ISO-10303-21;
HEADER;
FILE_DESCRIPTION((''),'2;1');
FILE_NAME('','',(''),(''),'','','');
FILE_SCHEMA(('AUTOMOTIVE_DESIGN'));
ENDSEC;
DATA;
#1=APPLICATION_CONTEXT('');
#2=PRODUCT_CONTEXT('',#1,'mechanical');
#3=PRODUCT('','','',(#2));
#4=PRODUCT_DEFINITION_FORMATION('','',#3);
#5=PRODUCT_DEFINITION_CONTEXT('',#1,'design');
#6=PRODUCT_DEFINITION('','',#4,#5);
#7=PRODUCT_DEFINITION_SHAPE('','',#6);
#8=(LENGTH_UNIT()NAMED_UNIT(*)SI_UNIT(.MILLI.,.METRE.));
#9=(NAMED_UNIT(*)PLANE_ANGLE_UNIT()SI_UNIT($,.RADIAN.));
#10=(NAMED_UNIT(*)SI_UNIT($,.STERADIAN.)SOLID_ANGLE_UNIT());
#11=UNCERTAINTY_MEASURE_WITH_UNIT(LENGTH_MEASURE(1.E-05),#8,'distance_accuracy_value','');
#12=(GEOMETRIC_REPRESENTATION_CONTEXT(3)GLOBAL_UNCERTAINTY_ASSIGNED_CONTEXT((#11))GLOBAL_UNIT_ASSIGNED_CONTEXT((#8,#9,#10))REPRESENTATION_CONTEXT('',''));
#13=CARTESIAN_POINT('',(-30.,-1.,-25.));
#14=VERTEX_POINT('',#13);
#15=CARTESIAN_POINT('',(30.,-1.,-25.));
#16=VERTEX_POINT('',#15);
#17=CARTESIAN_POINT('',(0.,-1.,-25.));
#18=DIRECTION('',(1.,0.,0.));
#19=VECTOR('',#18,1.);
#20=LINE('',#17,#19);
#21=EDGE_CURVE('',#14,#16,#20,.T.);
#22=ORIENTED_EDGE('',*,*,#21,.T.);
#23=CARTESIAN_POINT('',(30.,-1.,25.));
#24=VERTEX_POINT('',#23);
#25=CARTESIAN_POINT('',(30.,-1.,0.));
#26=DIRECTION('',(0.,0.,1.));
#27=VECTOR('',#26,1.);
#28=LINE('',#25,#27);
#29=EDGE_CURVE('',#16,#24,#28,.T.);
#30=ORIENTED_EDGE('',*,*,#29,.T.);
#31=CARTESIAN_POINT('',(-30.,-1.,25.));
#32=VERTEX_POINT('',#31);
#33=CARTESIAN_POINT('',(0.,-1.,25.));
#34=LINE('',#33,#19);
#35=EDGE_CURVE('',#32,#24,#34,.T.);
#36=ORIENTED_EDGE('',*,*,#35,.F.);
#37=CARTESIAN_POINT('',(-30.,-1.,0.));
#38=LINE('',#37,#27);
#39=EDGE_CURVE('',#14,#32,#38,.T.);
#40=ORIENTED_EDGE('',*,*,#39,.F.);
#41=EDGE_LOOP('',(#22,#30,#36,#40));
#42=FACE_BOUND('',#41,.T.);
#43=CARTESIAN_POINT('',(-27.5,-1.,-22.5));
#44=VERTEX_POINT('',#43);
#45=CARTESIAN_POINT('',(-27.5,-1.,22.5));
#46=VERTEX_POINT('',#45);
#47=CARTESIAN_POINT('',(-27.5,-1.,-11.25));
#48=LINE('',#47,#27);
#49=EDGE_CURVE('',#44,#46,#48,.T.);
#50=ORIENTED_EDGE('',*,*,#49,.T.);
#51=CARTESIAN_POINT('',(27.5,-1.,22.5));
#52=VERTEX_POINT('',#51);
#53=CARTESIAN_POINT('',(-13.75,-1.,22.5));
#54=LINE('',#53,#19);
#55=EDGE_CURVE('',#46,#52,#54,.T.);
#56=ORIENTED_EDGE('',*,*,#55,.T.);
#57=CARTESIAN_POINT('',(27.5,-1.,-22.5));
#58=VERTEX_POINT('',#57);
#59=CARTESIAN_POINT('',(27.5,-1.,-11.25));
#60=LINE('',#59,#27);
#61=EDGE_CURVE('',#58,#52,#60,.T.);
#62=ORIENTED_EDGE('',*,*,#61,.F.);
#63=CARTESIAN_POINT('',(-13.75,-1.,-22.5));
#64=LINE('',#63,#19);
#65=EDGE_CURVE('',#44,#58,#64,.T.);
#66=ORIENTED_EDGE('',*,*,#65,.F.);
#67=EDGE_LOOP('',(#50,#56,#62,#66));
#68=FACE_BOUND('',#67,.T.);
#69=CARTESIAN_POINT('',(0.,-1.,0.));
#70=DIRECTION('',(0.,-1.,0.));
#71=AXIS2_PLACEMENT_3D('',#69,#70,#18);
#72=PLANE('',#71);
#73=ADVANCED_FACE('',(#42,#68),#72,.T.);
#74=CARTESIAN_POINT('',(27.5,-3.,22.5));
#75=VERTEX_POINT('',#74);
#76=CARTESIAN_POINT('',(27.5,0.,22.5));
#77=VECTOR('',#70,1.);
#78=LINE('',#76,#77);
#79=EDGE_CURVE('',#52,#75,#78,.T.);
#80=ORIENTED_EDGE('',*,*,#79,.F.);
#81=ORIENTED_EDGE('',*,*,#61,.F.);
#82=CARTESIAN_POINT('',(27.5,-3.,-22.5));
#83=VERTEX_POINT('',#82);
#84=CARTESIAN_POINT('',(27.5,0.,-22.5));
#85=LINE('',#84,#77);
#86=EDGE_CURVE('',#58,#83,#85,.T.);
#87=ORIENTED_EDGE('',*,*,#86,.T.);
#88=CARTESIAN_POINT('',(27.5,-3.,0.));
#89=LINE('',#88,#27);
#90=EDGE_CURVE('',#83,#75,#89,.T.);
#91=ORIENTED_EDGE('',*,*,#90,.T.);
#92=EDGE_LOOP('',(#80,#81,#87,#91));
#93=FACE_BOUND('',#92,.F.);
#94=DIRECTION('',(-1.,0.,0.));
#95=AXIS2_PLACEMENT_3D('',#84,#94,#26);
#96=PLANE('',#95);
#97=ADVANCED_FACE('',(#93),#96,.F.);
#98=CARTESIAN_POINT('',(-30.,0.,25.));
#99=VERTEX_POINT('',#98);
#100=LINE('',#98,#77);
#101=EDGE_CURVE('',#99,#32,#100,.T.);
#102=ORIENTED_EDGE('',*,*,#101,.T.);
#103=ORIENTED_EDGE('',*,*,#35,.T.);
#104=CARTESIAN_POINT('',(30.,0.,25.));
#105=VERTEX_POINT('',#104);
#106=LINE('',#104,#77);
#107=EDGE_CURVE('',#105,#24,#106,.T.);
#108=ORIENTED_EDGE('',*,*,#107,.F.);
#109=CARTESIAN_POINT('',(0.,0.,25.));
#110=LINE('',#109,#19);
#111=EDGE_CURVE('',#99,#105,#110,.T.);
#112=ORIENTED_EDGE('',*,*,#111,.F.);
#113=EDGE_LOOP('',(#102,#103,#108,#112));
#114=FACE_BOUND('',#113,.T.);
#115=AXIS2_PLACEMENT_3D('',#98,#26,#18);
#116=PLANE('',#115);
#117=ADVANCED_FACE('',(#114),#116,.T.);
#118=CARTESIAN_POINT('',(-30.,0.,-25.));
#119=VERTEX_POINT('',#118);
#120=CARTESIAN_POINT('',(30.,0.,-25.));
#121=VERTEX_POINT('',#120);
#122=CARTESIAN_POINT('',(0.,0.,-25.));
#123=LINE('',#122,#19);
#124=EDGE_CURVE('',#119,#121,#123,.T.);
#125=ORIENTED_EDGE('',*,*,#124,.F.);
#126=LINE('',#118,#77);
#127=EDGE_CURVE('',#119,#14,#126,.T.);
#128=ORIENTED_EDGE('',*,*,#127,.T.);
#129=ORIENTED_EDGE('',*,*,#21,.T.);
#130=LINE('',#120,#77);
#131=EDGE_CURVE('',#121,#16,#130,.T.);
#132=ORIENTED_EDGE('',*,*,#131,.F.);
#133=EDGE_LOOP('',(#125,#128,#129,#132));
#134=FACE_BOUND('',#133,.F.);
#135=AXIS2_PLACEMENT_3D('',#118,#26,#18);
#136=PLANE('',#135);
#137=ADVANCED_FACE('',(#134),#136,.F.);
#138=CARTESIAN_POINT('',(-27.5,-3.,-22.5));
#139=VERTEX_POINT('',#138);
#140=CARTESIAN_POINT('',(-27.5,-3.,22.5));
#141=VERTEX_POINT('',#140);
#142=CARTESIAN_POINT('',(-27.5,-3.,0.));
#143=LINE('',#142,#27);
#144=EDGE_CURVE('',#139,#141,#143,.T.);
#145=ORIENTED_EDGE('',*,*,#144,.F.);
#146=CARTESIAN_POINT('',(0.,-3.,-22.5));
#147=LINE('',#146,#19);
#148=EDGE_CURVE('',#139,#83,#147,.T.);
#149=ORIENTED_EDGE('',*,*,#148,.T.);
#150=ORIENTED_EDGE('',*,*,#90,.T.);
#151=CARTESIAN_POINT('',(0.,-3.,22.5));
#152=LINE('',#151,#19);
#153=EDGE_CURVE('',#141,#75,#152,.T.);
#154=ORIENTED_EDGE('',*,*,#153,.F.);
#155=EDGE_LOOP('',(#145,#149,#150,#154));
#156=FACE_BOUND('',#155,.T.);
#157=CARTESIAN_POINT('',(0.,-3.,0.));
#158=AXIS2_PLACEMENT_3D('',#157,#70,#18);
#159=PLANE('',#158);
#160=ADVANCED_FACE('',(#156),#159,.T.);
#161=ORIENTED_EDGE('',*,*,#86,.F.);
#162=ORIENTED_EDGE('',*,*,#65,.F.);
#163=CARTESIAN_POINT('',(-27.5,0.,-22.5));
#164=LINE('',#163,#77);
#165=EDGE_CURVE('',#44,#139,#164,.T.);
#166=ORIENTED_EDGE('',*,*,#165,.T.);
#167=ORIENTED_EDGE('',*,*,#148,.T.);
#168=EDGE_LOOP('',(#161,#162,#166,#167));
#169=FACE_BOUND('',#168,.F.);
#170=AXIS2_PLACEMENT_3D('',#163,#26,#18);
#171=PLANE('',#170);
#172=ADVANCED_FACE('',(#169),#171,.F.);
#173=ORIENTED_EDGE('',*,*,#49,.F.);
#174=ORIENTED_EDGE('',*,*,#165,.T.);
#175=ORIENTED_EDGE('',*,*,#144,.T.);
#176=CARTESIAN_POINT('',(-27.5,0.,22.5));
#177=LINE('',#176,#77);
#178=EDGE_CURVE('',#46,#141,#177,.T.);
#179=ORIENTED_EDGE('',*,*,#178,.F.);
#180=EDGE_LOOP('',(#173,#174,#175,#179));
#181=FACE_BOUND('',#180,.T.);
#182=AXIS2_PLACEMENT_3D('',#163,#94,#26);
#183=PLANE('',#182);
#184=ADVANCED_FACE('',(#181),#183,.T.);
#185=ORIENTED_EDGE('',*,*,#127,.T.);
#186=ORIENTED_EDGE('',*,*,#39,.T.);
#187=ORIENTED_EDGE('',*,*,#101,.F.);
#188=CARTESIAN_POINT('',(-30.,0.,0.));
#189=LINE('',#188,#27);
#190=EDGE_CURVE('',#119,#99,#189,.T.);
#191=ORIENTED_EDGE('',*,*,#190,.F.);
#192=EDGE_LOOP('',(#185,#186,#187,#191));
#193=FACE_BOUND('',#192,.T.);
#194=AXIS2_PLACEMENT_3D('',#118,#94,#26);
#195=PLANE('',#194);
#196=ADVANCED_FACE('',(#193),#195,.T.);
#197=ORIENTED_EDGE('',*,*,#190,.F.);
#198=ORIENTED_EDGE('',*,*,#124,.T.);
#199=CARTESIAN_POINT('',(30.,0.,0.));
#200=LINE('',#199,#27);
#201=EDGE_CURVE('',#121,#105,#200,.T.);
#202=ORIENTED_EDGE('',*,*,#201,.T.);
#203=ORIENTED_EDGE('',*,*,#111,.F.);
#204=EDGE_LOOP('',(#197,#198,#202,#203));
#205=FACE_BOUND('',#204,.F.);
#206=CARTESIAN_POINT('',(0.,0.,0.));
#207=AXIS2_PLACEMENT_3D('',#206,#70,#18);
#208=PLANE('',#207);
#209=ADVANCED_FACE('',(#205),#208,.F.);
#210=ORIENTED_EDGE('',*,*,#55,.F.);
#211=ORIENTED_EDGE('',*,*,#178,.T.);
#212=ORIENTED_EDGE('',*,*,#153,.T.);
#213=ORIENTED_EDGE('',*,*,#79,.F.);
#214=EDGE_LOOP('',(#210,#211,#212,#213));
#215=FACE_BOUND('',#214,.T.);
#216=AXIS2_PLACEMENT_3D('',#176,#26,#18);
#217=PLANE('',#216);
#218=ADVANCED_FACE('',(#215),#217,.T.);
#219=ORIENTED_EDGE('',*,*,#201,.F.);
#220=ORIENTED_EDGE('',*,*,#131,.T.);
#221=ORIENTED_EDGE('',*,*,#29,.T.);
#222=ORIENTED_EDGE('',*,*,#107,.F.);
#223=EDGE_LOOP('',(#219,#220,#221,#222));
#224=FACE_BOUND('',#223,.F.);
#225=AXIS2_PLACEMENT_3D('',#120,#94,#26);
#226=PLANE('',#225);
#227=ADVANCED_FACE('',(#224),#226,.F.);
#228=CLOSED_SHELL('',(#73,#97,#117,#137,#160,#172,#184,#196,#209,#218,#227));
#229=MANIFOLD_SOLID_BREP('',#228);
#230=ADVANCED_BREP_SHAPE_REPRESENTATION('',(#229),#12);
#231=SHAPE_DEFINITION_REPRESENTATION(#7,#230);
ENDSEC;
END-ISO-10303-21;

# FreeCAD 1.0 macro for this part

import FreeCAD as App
import Part
import Sketcher

doc = App.newDocument("Part")
params = doc.addObject("Spreadsheet::Sheet", "Params")
for row, (alias, value) in enumerate([
    ("sketch1_width", "55 mm"),
    ("sketch1_height", "45 mm"),
    ("pad1_length", "3 mm"),
    ("sketch2_width", "60 mm"),
    ("sketch2_height", "50 mm"),
    ("pad2_length", "1 mm"),
], start=1):
    params.set(f"A{row}", alias)
    params.set(f"B{row}", "=" + value)
    params.setAlias(f"B{row}", alias)

body = doc.addObject("PartDesign::Body", "Body")

# Sketch on XZ plane
sketch1 = body.newObject("Sketcher::SketchObject", "Sketch")
sketch1.AttachmentSupport = (doc.getObject("XZ_Plane"), [""])
sketch1.MapMode = "FlatFace"
sketch1.addGeometry([
    Part.LineSegment(App.Vector(-28, 22, 0), App.Vector(-28, -22, 0)),
    Part.LineSegment(App.Vector(-28, -22, 0), App.Vector(28, -22, 0)),
    Part.LineSegment(App.Vector(28, -22, 0), App.Vector(28, 22, 0)),
    Part.LineSegment(App.Vector(28, 22, 0), App.Vector(-28, 22, 0)),
], False)
sketch1.addConstraint([
    Sketcher.Constraint("Coincident", 0, 2, 1, 1),
    Sketcher.Constraint("Coincident", 1, 2, 2, 1),
    Sketcher.Constraint("Coincident", 2, 2, 3, 1),
    Sketcher.Constraint("Coincident", 3, 2, 0, 1),
    Sketcher.Constraint("Vertical", 0),
    Sketcher.Constraint("Horizontal", 1),
    Sketcher.Constraint("Vertical", 2),
    Sketcher.Constraint("Horizontal", 3),
    Sketcher.Constraint("Symmetric", 0, 2, 2, 2, -1, 1),
    Sketcher.Constraint("DistanceX", 1, 1, 1, 2, 55.0),
    Sketcher.Constraint("DistanceY", 0, 2, 0, 1, 45.0),
])
sketch1.setExpression("Constraints[9]", "Params.sketch1_width")
sketch1.setExpression("Constraints[10]", "Params.sketch1_height")
pad1 = body.newObject("PartDesign::Pad", "Pad")
pad1.Profile = sketch1
pad1.setExpression("Length", "Params.pad1_length")

# Sketch on XZ plane
sketch2 = body.newObject("Sketcher::SketchObject", "Sketch001")
sketch2.AttachmentSupport = (doc.getObject("XZ_Plane"), [""])
sketch2.MapMode = "FlatFace"
sketch2.addGeometry([
    Part.LineSegment(App.Vector(-30, 25, 0), App.Vector(-30, -25, 0)),
    Part.LineSegment(App.Vector(-30, -25, 0), App.Vector(30, -25, 0)),
    Part.LineSegment(App.Vector(30, -25, 0), App.Vector(30, 25, 0)),
    Part.LineSegment(App.Vector(30, 25, 0), App.Vector(-30, 25, 0)),
], False)
sketch2.addConstraint([
    Sketcher.Constraint("Coincident", 0, 2, 1, 1),
    Sketcher.Constraint("Coincident", 1, 2, 2, 1),
    Sketcher.Constraint("Coincident", 2, 2, 3, 1),
    Sketcher.Constraint("Coincident", 3, 2, 0, 1),
    Sketcher.Constraint("Vertical", 0),
    Sketcher.Constraint("Horizontal", 1),
    Sketcher.Constraint("Vertical", 2),
    Sketcher.Constraint("Horizontal", 3),
    Sketcher.Constraint("Symmetric", 0, 2, 2, 2, -1, 1),
    Sketcher.Constraint("DistanceX", 1, 1, 1, 2, 60.0),
    Sketcher.Constraint("DistanceY", 0, 2, 0, 1, 50.0),
])
sketch2.setExpression("Constraints[9]", "Params.sketch2_width")
sketch2.setExpression("Constraints[10]", "Params.sketch2_height")
pad2 = body.newObject("PartDesign::Pad", "Pad001")
pad2.Profile = sketch2
pad2.setExpression("Length", "Params.pad2_length")

doc.recompute()
